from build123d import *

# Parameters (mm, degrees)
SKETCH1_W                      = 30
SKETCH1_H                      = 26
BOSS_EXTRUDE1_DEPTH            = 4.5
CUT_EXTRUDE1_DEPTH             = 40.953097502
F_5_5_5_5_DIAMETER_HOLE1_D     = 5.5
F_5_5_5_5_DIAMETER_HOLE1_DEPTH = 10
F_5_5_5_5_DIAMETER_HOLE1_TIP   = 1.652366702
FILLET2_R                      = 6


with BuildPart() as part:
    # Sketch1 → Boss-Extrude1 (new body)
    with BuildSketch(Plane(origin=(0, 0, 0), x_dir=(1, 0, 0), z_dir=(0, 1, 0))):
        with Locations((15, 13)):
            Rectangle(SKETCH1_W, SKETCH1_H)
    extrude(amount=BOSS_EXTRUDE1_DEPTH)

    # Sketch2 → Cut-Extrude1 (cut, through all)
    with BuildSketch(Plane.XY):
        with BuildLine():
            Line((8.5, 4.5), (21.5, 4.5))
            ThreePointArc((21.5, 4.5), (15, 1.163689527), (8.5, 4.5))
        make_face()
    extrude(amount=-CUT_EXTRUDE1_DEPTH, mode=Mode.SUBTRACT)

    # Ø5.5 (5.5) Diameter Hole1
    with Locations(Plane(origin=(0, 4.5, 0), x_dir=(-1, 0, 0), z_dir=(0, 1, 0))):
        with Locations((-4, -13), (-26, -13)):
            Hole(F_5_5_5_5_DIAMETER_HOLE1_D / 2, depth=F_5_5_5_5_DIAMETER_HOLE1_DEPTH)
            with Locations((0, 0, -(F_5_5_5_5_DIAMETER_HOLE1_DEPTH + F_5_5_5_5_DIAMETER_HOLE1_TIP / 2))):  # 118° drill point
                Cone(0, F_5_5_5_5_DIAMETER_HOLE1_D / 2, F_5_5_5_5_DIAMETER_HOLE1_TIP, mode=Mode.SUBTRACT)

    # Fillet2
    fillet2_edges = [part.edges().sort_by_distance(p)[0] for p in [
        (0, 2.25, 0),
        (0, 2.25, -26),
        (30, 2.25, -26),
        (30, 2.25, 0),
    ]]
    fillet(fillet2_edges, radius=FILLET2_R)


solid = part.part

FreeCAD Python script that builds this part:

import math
import FreeCAD as App
import Part
import Sketcher


def edges_at(feature, points):
    """Names of the edges that pass closest to the given points."""
    edges = feature.Shape.Edges
    near = lambda p: min(range(len(edges)), key=lambda i: edges[i].distToShape(Part.Vertex(*p))[0])
    return sorted({f"Edge{near(p) + 1}" for p in points})


def add_polygon(sketch, points):
    """Adds a closed chain of lines whose ends are joined by coincident constraints."""
    first, n = sketch.GeometryCount, len(points)
    for a, b in zip(points, points[1:] + points[:1]):
        sketch.addGeometry(Part.LineSegment(App.Vector(*a, 0), App.Vector(*b, 0)), False)
    for i in range(n):
        sketch.addConstraint(Sketcher.Constraint("Coincident", first + i, 2, first + (i + 1) % n, 1))

doc = App.newDocument("Part")
body = doc.addObject("PartDesign::Body", "Body")

sketch1 = body.newObject("Sketcher::SketchObject", "Sketch")
sketch1.AttachmentSupport = (doc.getObject("XZ_Plane"), [""])
sketch1.MapMode = "FlatFace"
add_polygon(sketch1, [(0, -26), (0, 0), (30, 0), (30, -26)])
sketch1.addConstraint([
    Sketcher.Constraint("Vertical", 0),
    Sketcher.Constraint("Horizontal", 1),
    Sketcher.Constraint("Vertical", 2),
    Sketcher.Constraint("Horizontal", 3),
    Sketcher.Constraint("Coincident", 0, 2, -1, 1),
    Sketcher.Constraint("DistanceX", 1, 1, 1, 2, 30.0),
    Sketcher.Constraint("DistanceY", 0, 1, 0, 2, 26.0),
])
pad1 = body.newObject("PartDesign::Pad", "Pad")
pad1.Profile = sketch1
pad1.Length = 4.5
pad1.Reversed = True

sketch2 = body.newObject("Sketcher::SketchObject", "Sketch001")
sketch2.AttachmentSupport = (doc.getObject("XY_Plane"), [""])
sketch2.MapMode = "FlatFace"
sketch2.addGeometry([
    Part.LineSegment(App.Vector(22, 4, 0), App.Vector(8, 4, 0)),
    Part.ArcOfCircle(Part.Circle(App.Vector(15, 9, 0), App.Vector(0, 0, 1), 8), math.radians(-144), math.radians(-36)),
], False)
sketch2.addConstraint([
    Sketcher.Constraint("Coincident", 0, 1, 1, 2),
    Sketcher.Constraint("Coincident", 1, 1, 0, 2),
    Sketcher.Constraint("Horizontal", 0),
    Sketcher.Constraint("Radius", 1, 8.0),
    Sketcher.Constraint("DistanceX", 0, 2, 0, 1, 13.0),
    Sketcher.Constraint("DistanceX", -1, 1, 1, 3, 15.0),
    Sketcher.Constraint("DistanceY", -1, 1, 0, 1, 4.5),
])
pocket1 = body.newObject("PartDesign::Pocket", "Pocket")
pocket1.Profile = sketch2
pocket1.Type = "ThroughAll"

sketch3 = body.newObject("Sketcher::SketchObject", "Sketch002")
sketch3.AttachmentSupport = (doc.getObject("XZ_Plane"), [""])
sketch3.MapMode = "FlatFace"
sketch3.AttachmentOffset = App.Placement(App.Vector(0, 0, -4.5), App.Rotation())
sketch3.addGeometry([
    Part.Circle(App.Vector(4, -13, 0), App.Vector(0, 0, 1), 2.8),
    Part.Circle(App.Vector(26, -13, 0), App.Vector(0, 0, 1), 2.8),
], False)
sketch3.addConstraint([
    Sketcher.Constraint("Equal", 0, 1),
    Sketcher.Constraint("Horizontal", 0, 3, 1, 3),
    Sketcher.Constraint("Diameter", 0, 5.5),
    Sketcher.Constraint("DistanceX", -1, 1, 0, 3, 4.0),
    Sketcher.Constraint("DistanceY", 0, 3, -1, 1, 13.0),
    Sketcher.Constraint("DistanceX", -1, 1, 1, 3, 26.0),
])
doc.recompute()
hole = body.newObject("PartDesign::Hole", "Hole")
hole.Profile = sketch3
hole.ThreadType = "None"
hole.Diameter = 5.5
hole.DepthType = "Dimension"
hole.Depth = 10
hole.DrillPoint = "Angled"
hole.DrillPointAngle = 118
hole.Reversed = True
doc.recompute()

fillet = body.newObject("PartDesign::Fillet", "Fillet")
fillet.Base = (hole, edges_at(hole, [
    (0, 2.25, 0),
    (0, 2.25, -26),
    (30, 2.25, -26),
    (30, 2.25, 0),
]))
fillet.Radius = 6

doc.recompute()
